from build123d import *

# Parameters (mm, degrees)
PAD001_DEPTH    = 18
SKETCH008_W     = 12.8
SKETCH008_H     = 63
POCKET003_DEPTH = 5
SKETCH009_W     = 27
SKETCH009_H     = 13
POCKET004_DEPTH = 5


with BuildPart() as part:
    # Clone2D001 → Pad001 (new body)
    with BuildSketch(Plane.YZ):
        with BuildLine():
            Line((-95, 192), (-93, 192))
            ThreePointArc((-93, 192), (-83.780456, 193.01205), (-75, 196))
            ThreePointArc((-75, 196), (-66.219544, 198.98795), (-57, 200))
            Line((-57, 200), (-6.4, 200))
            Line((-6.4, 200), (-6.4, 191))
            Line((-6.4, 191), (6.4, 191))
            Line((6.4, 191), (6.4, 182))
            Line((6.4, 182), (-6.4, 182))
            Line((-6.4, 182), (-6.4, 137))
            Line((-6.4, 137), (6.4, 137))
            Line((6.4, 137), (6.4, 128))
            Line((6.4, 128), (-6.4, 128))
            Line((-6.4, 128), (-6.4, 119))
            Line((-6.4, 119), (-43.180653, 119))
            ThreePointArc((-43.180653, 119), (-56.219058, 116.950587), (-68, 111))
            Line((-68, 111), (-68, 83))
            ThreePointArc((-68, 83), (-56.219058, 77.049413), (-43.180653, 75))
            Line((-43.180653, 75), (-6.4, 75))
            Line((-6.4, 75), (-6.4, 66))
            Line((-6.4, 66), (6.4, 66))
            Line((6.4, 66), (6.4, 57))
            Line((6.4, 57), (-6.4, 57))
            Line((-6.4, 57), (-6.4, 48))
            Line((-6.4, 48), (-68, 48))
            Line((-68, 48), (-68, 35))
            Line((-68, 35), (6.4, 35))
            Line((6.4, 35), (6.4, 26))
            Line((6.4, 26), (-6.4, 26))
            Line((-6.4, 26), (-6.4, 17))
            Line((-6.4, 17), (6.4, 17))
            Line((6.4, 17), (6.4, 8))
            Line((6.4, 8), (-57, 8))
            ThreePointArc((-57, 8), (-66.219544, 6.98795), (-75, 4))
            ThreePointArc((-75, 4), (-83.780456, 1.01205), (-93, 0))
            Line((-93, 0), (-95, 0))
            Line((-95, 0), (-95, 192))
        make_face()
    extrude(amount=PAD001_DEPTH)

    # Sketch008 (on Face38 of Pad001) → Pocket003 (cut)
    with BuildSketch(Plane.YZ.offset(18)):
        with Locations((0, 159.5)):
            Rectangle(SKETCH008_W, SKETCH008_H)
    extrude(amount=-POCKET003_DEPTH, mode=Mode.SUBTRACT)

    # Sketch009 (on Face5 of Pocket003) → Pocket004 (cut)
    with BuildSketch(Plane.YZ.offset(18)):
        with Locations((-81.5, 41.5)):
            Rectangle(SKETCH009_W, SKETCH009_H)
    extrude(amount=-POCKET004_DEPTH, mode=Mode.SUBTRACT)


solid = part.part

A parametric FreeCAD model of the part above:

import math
import FreeCAD as App
import Part
import Sketcher
from FreeCAD import Vector
Q = App.Units.Quantity


def add_polygon(sketch, points):
    """Adds a closed chain of lines whose ends are joined by coincident constraints."""
    first, n = sketch.GeometryCount, len(points)
    for a, b in zip(points, points[1:] + points[:1]):
        sketch.addGeometry(Part.LineSegment(App.Vector(*a, 0), App.Vector(*b, 0)), False)
    for i in range(n):
        sketch.addConstraint(Sketcher.Constraint("Coincident", first + i, 2, first + (i + 1) % n, 1))

doc = App.newDocument("Part")
body = doc.addObject("PartDesign::Body", "Body")

# Sketch on YZ plane
sketch1 = body.newObject("Sketcher::SketchObject", "Sketch")
sketch1.AttachmentSupport = (doc.getObject("YZ_Plane"), [""])
sketch1.MapMode = "FlatFace"
sketch1.addGeometry([
    Part.LineSegment(Vector(-93, 192, 0), Vector(-95, 192, 0)),  # 0
    Part.LineSegment(Vector(-95, 192, 0), Vector(-95, 0, 0)),  # 1
    Part.LineSegment(Vector(-95, 0, 0), Vector(-93, 0, 0)),  # 2
    Part.ArcOfCircle(Part.Circle(Vector(-93, 42.5, 0), Vector(0, 0, 1), 42.5), math.radians(-90), math.radians(-65)),  # 3
    Part.ArcOfCircle(Part.Circle(Vector(-57, -34.5, 0), Vector(0, 0, 1), 42.5), math.radians(90), math.radians(115)),  # 4
    Part.LineSegment(Vector(-57, 8, 0), Vector(6.4, 8, 0)),  # 5
    Part.LineSegment(Vector(6.4, 8, 0), Vector(6.4, 17, 0)),  # 6
    Part.LineSegment(Vector(6.4, 17, 0), Vector(-6.4, 17, 0)),  # 7
    Part.LineSegment(Vector(-6.4, 17, 0), Vector(-6.4, 26, 0)),  # 8
    Part.LineSegment(Vector(-6.4, 26, 0), Vector(6.4, 26, 0)),  # 9
    Part.LineSegment(Vector(6.4, 26, 0), Vector(6.4, 35, 0)),  # 10
    Part.LineSegment(Vector(6.4, 35, 0), Vector(-68, 35, 0)),  # 11
    Part.LineSegment(Vector(-68, 35, 0), Vector(-68, 48, 0)),  # 12
    Part.LineSegment(Vector(-68, 48, 0), Vector(-6.4, 48, 0)),  # 13
    Part.LineSegment(Vector(-6.4, 48, 0), Vector(-6.4, 57, 0)),  # 14
    Part.LineSegment(Vector(-6.4, 57, 0), Vector(6.4, 57, 0)),  # 15
    Part.LineSegment(Vector(6.4, 57, 0), Vector(6.4, 66, 0)),  # 16
    Part.LineSegment(Vector(6.4, 66, 0), Vector(-6.4, 66, 0)),  # 17
    Part.LineSegment(Vector(-6.4, 66, 0), Vector(-6.4, 75, 0)),  # 18
    Part.LineSegment(Vector(-6.4, 75, 0), Vector(-43.2, 75, 0)),  # 19
    Part.ArcOfCircle(Part.Circle(Vector(-43.2, 117.5, 0), Vector(0, 0, 1), 42.5), math.radians(-126), math.radians(-90)),  # 20
    Part.LineSegment(Vector(-68, 83, 0), Vector(-68, 111, 0)),  # 21
    Part.ArcOfCircle(Part.Circle(Vector(-43.2, 76.5, 0), Vector(0, 0, 1), 42.5), math.radians(90), math.radians(126)),  # 22
    Part.LineSegment(Vector(-43.2, 119, 0), Vector(-6.4, 119, 0)),  # 23
    Part.LineSegment(Vector(-6.4, 119, 0), Vector(-6.4, 128, 0)),  # 24
    Part.LineSegment(Vector(-6.4, 128, 0), Vector(6.4, 128, 0)),  # 25
    Part.LineSegment(Vector(6.4, 128, 0), Vector(6.4, 137, 0)),  # 26
    Part.LineSegment(Vector(6.4, 137, 0), Vector(-6.4, 137, 0)),  # 27
    Part.LineSegment(Vector(-6.4, 137, 0), Vector(-6.4, 182, 0)),  # 28
    Part.LineSegment(Vector(-6.4, 182, 0), Vector(6.4, 182, 0)),  # 29
    Part.LineSegment(Vector(6.4, 182, 0), Vector(6.4, 191, 0)),  # 30
    Part.LineSegment(Vector(6.4, 191, 0), Vector(-6.4, 191, 0)),  # 31
    Part.LineSegment(Vector(-6.4, 191, 0), Vector(-6.4, 200, 0)),  # 32
    Part.LineSegment(Vector(-6.4, 200, 0), Vector(-57, 200, 0)),  # 33
    Part.ArcOfCircle(Part.Circle(Vector(-57, 157.5, 0), Vector(0, 0, 1), 42.5), math.radians(90), math.radians(115)),  # 34
    Part.ArcOfCircle(Part.Circle(Vector(-93, 234.5, 0), Vector(0, 0, 1), 42.5), math.radians(-90), math.radians(-65)),  # 35
], False)
sketch1.addConstraint([
    Sketcher.Constraint("Coincident", 0, 2, 1, 1),
    Sketcher.Constraint("Coincident", 1, 2, 2, 1),
    Sketcher.Constraint("Tangent", 2, 2, 3, 1),
    Sketcher.Constraint("Tangent", 3, 2, 4, 2),
    Sketcher.Constraint("Tangent", 4, 1, 5, 1),
    Sketcher.Constraint("Coincident", 5, 2, 6, 1),
    Sketcher.Constraint("Coincident", 6, 2, 7, 1),
    Sketcher.Constraint("Coincident", 7, 2, 8, 1),
    Sketcher.Constraint("Coincident", 8, 2, 9, 1),
    Sketcher.Constraint("Coincident", 9, 2, 10, 1),
    Sketcher.Constraint("Coincident", 10, 2, 11, 1),
    Sketcher.Constraint("Coincident", 11, 2, 12, 1),
    Sketcher.Constraint("Coincident", 12, 2, 13, 1),
    Sketcher.Constraint("Coincident", 13, 2, 14, 1),
    Sketcher.Constraint("Coincident", 14, 2, 15, 1),
    Sketcher.Constraint("Coincident", 15, 2, 16, 1),
    Sketcher.Constraint("Coincident", 16, 2, 17, 1),
    Sketcher.Constraint("Coincident", 17, 2, 18, 1),
    Sketcher.Constraint("Coincident", 18, 2, 19, 1),
    Sketcher.Constraint("Tangent", 19, 2, 20, 2),
    Sketcher.Constraint("Coincident", 20, 1, 21, 1),
    Sketcher.Constraint("Coincident", 21, 2, 22, 2),
    Sketcher.Constraint("Tangent", 22, 1, 23, 1),
    Sketcher.Constraint("Coincident", 23, 2, 24, 1),
    Sketcher.Constraint("Coincident", 24, 2, 25, 1),
    Sketcher.Constraint("Coincident", 25, 2, 26, 1),
    Sketcher.Constraint("Coincident", 26, 2, 27, 1),
    Sketcher.Constraint("Coincident", 27, 2, 28, 1),
    Sketcher.Constraint("Coincident", 28, 2, 29, 1),
    Sketcher.Constraint("Coincident", 29, 2, 30, 1),
    Sketcher.Constraint("Coincident", 30, 2, 31, 1),
    Sketcher.Constraint("Coincident", 31, 2, 32, 1),
    Sketcher.Constraint("Coincident", 32, 2, 33, 1),
    Sketcher.Constraint("Tangent", 33, 2, 34, 1),
    Sketcher.Constraint("Tangent", 34, 2, 35, 2),
    Sketcher.Constraint("Tangent", 35, 1, 0, 1),
    Sketcher.Constraint("Horizontal", 0),
    Sketcher.Constraint("Vertical", 1),
    Sketcher.Constraint("Horizontal", 2),
    Sketcher.Constraint("Horizontal", 5),
    Sketcher.Constraint("Vertical", 6),
    Sketcher.Constraint("Horizontal", 7),
    Sketcher.Constraint("Vertical", 8),
    Sketcher.Constraint("Horizontal", 9),
    Sketcher.Constraint("Vertical", 10),
    Sketcher.Constraint("Horizontal", 11),
    Sketcher.Constraint("Vertical", 12),
    Sketcher.Constraint("Horizontal", 13),
    Sketcher.Constraint("Vertical", 14),
    Sketcher.Constraint("Horizontal", 15),
    Sketcher.Constraint("Vertical", 16),
    Sketcher.Constraint("Horizontal", 17),
    Sketcher.Constraint("Vertical", 18),
    Sketcher.Constraint("Horizontal", 19),
    Sketcher.Constraint("Vertical", 21),
    Sketcher.Constraint("Horizontal", 23),
    Sketcher.Constraint("Vertical", 24),
    Sketcher.Constraint("Horizontal", 25),
    Sketcher.Constraint("Vertical", 26),
    Sketcher.Constraint("Horizontal", 27),
    Sketcher.Constraint("Vertical", 28),
    Sketcher.Constraint("Horizontal", 29),
    Sketcher.Constraint("Vertical", 30),
    Sketcher.Constraint("Horizontal", 31),
    Sketcher.Constraint("Vertical", 32),
    Sketcher.Constraint("Horizontal", 33),
    Sketcher.Constraint("Equal", 3, 4),
    Sketcher.Constraint("Equal", 20, 22),
    Sketcher.Constraint("Equal", 4, 34),
    Sketcher.Constraint("Equal", 34, 35),
    Sketcher.Constraint("PointOnObject", 1, 2, -1),
    Sketcher.Constraint("Vertical", 20, 3, 22, 3),
    Sketcher.Constraint("Vertical", 4, 3, 34, 3),
    Sketcher.Constraint("Vertical", 3, 3, 35, 3),
    Sketcher.Constraint("Vertical", 6, 2, 9, 2),
    Sketcher.Constraint("Vertical", 8, 2, 13, 2),
    Sketcher.Constraint("Vertical", 10, 2, 15, 2),
    Sketcher.Constraint("Vertical", 14, 2, 17, 2),
    Sketcher.Constraint("Vertical", 12, 2, 20, 1),
    Sketcher.Constraint("Vertical", 18, 2, 23, 2),
    Sketcher.Constraint("Vertical", 16, 2, 25, 2),
    Sketcher.Constraint("Vertical", 24, 2, 27, 2),
    Sketcher.Constraint("Vertical", 26, 2, 29, 2),
    Sketcher.Constraint("Vertical", 28, 2, 31, 2),
    Sketcher.Constraint("Equal", 6, 8),
    Sketcher.Constraint("Equal", 8, 10),
    Sketcher.Constraint("Equal", 10, 14),
    Sketcher.Constraint("Equal", 14, 16),
    Sketcher.Constraint("Equal", 16, 18),
    Sketcher.Constraint("Equal", 18, 24),
    Sketcher.Constraint("Equal", 24, 26),
    Sketcher.Constraint("Equal", 26, 30),
    Sketcher.Constraint("Equal", 30, 32),
    Sketcher.Constraint("Radius", 20, Q("42.5 mm")),
    Sketcher.Constraint("DistanceX", 0, 2, 0, 1, Q("2 mm")),
    Sketcher.Constraint("DistanceY", 1, 2, 1, 1, Q("192 mm")),
    Sketcher.Constraint("DistanceY", 6, 1, 6, 2, Q("9 mm")),
    Sketcher.Constraint("DistanceY", 12, 1, 12, 2, Q("13 mm")),
    Sketcher.Constraint("DistanceY", 21, 1, 21, 2, Q("28 mm")),
    Sketcher.Constraint("DistanceY", 28, 1, 28, 2, Q("45 mm")),
    Sketcher.Constraint("DistanceX", 5, 1, 5, 2, Q("63.4 mm")),
    Sketcher.Constraint("DistanceX", 7, 2, 7, 1, Q("12.8 mm")),
    Sketcher.Constraint("DistanceX", 11, 2, 11, 1, Q("74.4 mm")),
    Sketcher.Constraint("DistanceX", 3, 3, -1, 1, Q("93.000001 mm")),
    Sketcher.Constraint("DistanceX", 4, 3, -1, 1, Q("56.999999 mm")),
    Sketcher.Constraint("DistanceY", -1, 1, 4, 1, Q("8 mm")),
])
pad1 = body.newObject("PartDesign::Pad", "Pad")
pad1.Profile = sketch1
pad1.Length = 18

# Sketch on YZ plane
sketch2 = body.newObject("Sketcher::SketchObject", "Sketch001")
sketch2.AttachmentSupport = (doc.getObject("YZ_Plane"), [""])
sketch2.MapMode = "FlatFace"
sketch2.AttachmentOffset = App.Placement(Vector(0, 0, 18), App.Rotation())
add_polygon(sketch2, [(-6, 191), (-6, 128), (6, 128), (6, 191)])  # lines 0-3
sketch2.addConstraint([
    Sketcher.Constraint("Vertical", 0),
    Sketcher.Constraint("Horizontal", 1),
    Sketcher.Constraint("Vertical", 2),
    Sketcher.Constraint("Horizontal", 3),
    Sketcher.Constraint("DistanceY", 0, 2, 0, 1, Q("63 mm")),
    Sketcher.Constraint("DistanceX", 1, 1, 1, 2, Q("12.8 mm")),
    Sketcher.Constraint("DistanceY", -1, 1, 0, 2, Q("128 mm")),
    Sketcher.Constraint("DistanceX", 0, 2, -1, 1, Q("6.4 mm")),
])
pocket1 = body.newObject("PartDesign::Pocket", "Pocket")
pocket1.Profile = sketch2
pocket1.Length = 5

# Sketch on YZ plane
sketch3 = body.newObject("Sketcher::SketchObject", "Sketch002")
sketch3.AttachmentSupport = (doc.getObject("YZ_Plane"), [""])
sketch3.MapMode = "FlatFace"
sketch3.AttachmentOffset = App.Placement(Vector(0, 0, 18), App.Rotation())
add_polygon(sketch3, [(-95, 48), (-95, 35), (-68, 35), (-68, 48)])  # lines 0-3
sketch3.addConstraint([
    Sketcher.Constraint("Vertical", 0),
    Sketcher.Constraint("Horizontal", 1),
    Sketcher.Constraint("Vertical", 2),
    Sketcher.Constraint("Horizontal", 3),
    Sketcher.Constraint("DistanceX", 1, 1, 1, 2, Q("27 mm")),
    Sketcher.Constraint("DistanceY", 0, 2, 0, 1, Q("13 mm")),
    Sketcher.Constraint("DistanceX", 0, 2, -1, 1, Q("95 mm")),
    Sketcher.Constraint("DistanceY", -1, 1, 0, 2, Q("35 mm")),
])
pocket2 = body.newObject("PartDesign::Pocket", "Pocket001")
pocket2.Profile = sketch3
pocket2.Length = 5

doc.recompute()
